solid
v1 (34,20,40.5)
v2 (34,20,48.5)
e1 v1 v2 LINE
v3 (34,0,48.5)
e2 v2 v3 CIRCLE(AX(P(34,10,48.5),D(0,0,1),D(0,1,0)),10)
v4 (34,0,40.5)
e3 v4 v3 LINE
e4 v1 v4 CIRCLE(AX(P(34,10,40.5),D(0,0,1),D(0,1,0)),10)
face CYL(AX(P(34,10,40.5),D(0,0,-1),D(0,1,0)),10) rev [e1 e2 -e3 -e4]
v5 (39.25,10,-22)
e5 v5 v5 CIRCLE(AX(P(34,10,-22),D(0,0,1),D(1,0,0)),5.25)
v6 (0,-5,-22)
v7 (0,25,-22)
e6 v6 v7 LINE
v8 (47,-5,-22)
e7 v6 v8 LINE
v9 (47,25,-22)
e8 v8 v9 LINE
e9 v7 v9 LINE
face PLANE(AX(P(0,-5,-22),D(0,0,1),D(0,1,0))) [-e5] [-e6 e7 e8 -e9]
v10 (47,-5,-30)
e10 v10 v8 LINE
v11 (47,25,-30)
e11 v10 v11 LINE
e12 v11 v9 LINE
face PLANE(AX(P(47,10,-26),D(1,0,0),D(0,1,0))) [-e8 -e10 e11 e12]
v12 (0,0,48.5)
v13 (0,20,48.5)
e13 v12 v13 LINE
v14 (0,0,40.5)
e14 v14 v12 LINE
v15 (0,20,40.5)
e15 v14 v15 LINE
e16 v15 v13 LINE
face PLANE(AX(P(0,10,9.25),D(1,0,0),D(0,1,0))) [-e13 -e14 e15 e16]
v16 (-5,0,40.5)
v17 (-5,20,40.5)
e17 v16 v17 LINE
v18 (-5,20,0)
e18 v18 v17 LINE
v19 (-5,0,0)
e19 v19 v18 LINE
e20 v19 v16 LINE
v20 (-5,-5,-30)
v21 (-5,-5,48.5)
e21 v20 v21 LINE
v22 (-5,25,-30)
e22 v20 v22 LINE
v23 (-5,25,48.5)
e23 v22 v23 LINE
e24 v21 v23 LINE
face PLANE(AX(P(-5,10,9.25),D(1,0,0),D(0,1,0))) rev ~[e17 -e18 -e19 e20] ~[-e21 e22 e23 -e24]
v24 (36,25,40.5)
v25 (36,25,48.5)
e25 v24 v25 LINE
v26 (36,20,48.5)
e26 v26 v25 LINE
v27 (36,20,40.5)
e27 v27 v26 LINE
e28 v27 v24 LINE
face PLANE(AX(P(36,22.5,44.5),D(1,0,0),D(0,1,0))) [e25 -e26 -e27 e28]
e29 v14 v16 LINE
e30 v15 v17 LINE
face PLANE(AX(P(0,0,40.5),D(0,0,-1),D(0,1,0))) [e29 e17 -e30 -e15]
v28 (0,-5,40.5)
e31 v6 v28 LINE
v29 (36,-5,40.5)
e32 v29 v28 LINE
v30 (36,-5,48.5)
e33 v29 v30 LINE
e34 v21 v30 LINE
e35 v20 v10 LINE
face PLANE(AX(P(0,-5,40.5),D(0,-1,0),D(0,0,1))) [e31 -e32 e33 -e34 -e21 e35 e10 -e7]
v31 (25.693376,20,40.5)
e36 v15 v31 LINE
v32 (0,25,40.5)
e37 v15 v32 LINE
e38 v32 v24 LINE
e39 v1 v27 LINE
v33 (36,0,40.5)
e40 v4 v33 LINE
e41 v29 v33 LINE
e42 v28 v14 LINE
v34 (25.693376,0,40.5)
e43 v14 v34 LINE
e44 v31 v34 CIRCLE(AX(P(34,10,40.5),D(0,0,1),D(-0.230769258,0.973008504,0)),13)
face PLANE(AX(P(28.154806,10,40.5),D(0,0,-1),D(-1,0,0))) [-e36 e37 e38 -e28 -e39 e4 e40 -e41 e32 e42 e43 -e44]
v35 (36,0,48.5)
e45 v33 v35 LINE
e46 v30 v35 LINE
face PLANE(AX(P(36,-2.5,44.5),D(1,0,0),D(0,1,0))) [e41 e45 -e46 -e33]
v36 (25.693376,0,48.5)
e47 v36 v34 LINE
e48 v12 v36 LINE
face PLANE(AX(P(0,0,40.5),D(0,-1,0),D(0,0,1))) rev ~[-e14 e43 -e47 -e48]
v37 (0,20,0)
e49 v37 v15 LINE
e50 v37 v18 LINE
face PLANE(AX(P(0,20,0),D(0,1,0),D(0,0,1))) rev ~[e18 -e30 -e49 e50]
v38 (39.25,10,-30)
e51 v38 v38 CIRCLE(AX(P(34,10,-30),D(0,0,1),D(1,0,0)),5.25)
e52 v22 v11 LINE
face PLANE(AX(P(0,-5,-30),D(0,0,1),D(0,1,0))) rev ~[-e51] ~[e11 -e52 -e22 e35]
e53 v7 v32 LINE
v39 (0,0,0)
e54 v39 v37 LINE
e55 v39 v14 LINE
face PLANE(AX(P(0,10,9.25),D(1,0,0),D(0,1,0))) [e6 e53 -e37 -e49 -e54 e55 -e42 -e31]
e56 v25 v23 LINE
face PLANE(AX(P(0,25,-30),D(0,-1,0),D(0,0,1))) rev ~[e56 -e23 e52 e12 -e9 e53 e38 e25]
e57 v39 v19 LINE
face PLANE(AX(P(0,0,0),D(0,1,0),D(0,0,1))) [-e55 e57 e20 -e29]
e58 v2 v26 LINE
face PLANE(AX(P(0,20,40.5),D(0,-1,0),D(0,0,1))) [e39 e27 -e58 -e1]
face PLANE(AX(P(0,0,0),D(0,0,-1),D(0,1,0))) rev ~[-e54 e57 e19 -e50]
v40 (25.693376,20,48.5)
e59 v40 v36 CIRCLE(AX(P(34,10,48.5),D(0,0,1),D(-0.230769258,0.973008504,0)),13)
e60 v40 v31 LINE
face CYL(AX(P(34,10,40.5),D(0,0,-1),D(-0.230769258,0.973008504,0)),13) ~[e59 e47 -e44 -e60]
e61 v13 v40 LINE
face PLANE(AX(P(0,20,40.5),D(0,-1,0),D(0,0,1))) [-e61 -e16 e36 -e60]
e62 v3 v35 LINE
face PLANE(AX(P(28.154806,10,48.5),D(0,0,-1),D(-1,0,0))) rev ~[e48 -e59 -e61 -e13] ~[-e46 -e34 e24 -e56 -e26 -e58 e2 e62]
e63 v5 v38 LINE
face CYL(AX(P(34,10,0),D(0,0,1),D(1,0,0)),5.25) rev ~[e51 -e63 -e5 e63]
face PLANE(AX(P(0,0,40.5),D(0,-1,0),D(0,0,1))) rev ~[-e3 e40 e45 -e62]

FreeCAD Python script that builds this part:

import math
import FreeCAD as App
import Part
import Sketcher

V = App.Vector
Q = App.Units.Quantity

doc = App.newDocument("Part")
body = doc.addObject("PartDesign::Body", "Body")

sketch1 = doc.addObject("Sketcher::SketchObject", "Sketch")
body.addObject(sketch1)
sketch1.AttachmentSupport = (doc.YZ_Plane, [""])
sketch1.MapMode = "FlatFace"
sketch1.addGeometry([
    Part.LineSegment(V(-5, 48, 0), V(-5, -30, 0)),
    Part.LineSegment(V(-5, -30, 0), V(25, -30, 0)),
    Part.LineSegment(V(25, -30, 0), V(25, 48, 0)),
    Part.LineSegment(V(25, 48, 0), V(-5, 48, 0)),
    Part.LineSegment(V(20, 0, 0), V(0, 0, 0)),
    Part.LineSegment(V(0, 0, 0), V(0, 40, 0)),
    Part.LineSegment(V(0, 40, 0), V(20, 40, 0)),
    Part.LineSegment(V(20, 40, 0), V(20, 0, 0)),
], False)
sketch1.addConstraint([
    Sketcher.Constraint("Coincident", 0, 2, 1, 1),
    Sketcher.Constraint("Coincident", 1, 2, 2, 1),
    Sketcher.Constraint("Coincident", 2, 2, 3, 1),
    Sketcher.Constraint("Coincident", 3, 2, 0, 1),
    Sketcher.Constraint("Coincident", 4, 2, 5, 1),
    Sketcher.Constraint("Coincident", 5, 2, 6, 1),
    Sketcher.Constraint("Coincident", 6, 2, 7, 1),
    Sketcher.Constraint("Coincident", 7, 2, 4, 1),
    Sketcher.Constraint("Vertical", 0),
    Sketcher.Constraint("Horizontal", 1),
    Sketcher.Constraint("Vertical", 2),
    Sketcher.Constraint("Horizontal", 3),
    Sketcher.Constraint("Horizontal", 4),
    Sketcher.Constraint("Vertical", 5),
    Sketcher.Constraint("Horizontal", 6),
    Sketcher.Constraint("Vertical", 7),
    Sketcher.Constraint("Coincident", 4, 2, -1, 1),
    Sketcher.Constraint("DistanceX", 1, 1, 1, 2, Q("30 mm")),
    Sketcher.Constraint("DistanceX", 4, 2, 4, 1, Q("20 mm")),
    Sketcher.Constraint("DistanceY", 0, 2, 0, 1, Q("78.5 mm")),
    Sketcher.Constraint("DistanceY", 5, 1, 5, 2, Q("40.5 mm")),
    Sketcher.Constraint("DistanceX", 0, 2, -1, 1, Q("5 mm")),
    Sketcher.Constraint("DistanceY", 0, 2, -1, 1, Q("30 mm")),
])
pad1 = doc.addObject("PartDesign::Pad", "Pad")
body.addObject(pad1)
pad1.Profile = sketch1
pad1.Length = 5
pad1.Reversed = True

sketch2 = doc.addObject("Sketcher::SketchObject", "Sketch001")
body.addObject(sketch2)
sketch2.AttachmentSupport = (doc.YZ_Plane, [""])
sketch2.MapMode = "FlatFace"
sketch2.addGeometry([
    Part.LineSegment(V(-5, -22, 0), V(-5, -30, 0)),
    Part.LineSegment(V(-5, -30, 0), V(25, -30, 0)),
    Part.LineSegment(V(25, -30, 0), V(25, -22, 0)),
    Part.LineSegment(V(25, -22, 0), V(-5, -22, 0)),
], False)
sketch2.addConstraint([
    Sketcher.Constraint("Coincident", 0, 2, 1, 1),
    Sketcher.Constraint("Coincident", 1, 2, 2, 1),
    Sketcher.Constraint("Coincident", 2, 2, 3, 1),
    Sketcher.Constraint("Coincident", 3, 2, 0, 1),
    Sketcher.Constraint("Vertical", 0),
    Sketcher.Constraint("Horizontal", 1),
    Sketcher.Constraint("Vertical", 2),
    Sketcher.Constraint("Horizontal", 3),
    Sketcher.Constraint("DistanceX", 1, 1, 1, 2, Q("30 mm")),
    Sketcher.Constraint("DistanceY", 0, 2, 0, 1, Q("8 mm")),
    Sketcher.Constraint("DistanceX", 0, 2, -1, 1, Q("5 mm")),
    Sketcher.Constraint("DistanceY", 0, 2, -1, 1, Q("30 mm")),
])
pad2 = doc.addObject("PartDesign::Pad", "Pad001")
body.addObject(pad2)
pad2.Profile = sketch2
pad2.Length = 47

sketch3 = doc.addObject("Sketcher::SketchObject", "Sketch002")
body.addObject(sketch3)
sketch3.AttachmentSupport = (doc.YZ_Plane, [""])
sketch3.MapMode = "FlatFace"
sketch3.addGeometry([
    Part.LineSegment(V(-5, 48, 0), V(-5, 40, 0)),
    Part.LineSegment(V(-5, 40, 0), V(0, 40, 0)),
    Part.LineSegment(V(0, 40, 0), V(0, 48, 0)),
    Part.LineSegment(V(0, 48, 0), V(-5, 48, 0)),
    Part.LineSegment(V(20, 48, 0), V(20, 40, 0)),
    Part.LineSegment(V(20, 40, 0), V(25, 40, 0)),
    Part.LineSegment(V(25, 40, 0), V(25, 48, 0)),
    Part.LineSegment(V(25, 48, 0), V(20, 48, 0)),
], False)
sketch3.addConstraint([
    Sketcher.Constraint("Coincident", 0, 2, 1, 1),
    Sketcher.Constraint("Coincident", 1, 2, 2, 1),
    Sketcher.Constraint("Coincident", 2, 2, 3, 1),
    Sketcher.Constraint("Coincident", 3, 2, 0, 1),
    Sketcher.Constraint("Coincident", 4, 2, 5, 1),
    Sketcher.Constraint("Coincident", 5, 2, 6, 1),
    Sketcher.Constraint("Coincident", 6, 2, 7, 1),
    Sketcher.Constraint("Coincident", 7, 2, 4, 1),
    Sketcher.Constraint("Vertical", 0),
    Sketcher.Constraint("Horizontal", 1),
    Sketcher.Constraint("Vertical", 2),
    Sketcher.Constraint("Horizontal", 3),
    Sketcher.Constraint("Vertical", 4),
    Sketcher.Constraint("Horizontal", 5),
    Sketcher.Constraint("Vertical", 6),
    Sketcher.Constraint("Horizontal", 7),
    Sketcher.Constraint("PointOnObject", 1, 2, -2),
    Sketcher.Constraint("Horizontal", 1, 2, 4, 2),
    Sketcher.Constraint("Horizontal", 3, 2, 6, 2),
    Sketcher.Constraint("Equal", 3, 5),
    Sketcher.Constraint("DistanceX", 1, 1, 1, 2, Q("5 mm")),
    Sketcher.Constraint("DistanceY", 0, 2, 0, 1, Q("8 mm")),
    Sketcher.Constraint("DistanceX", -1, 1, 4, 2, Q("20 mm")),
    Sketcher.Constraint("DistanceY", -1, 1, 0, 2, Q("40.5 mm")),
])
pad3 = doc.addObject("PartDesign::Pad", "Pad002")
body.addObject(pad3)
pad3.Profile = sketch3
pad3.Length = 36

sketch4 = doc.addObject("Sketcher::SketchObject", "Sketch003")
body.addObject(sketch4)
sketch4.AttachmentSupport = (doc.XY_Plane, [""])
sketch4.MapMode = "FlatFace"
sketch4.AttachmentOffset = App.Placement(V(0, 0, 40.5), App.Rotation())
sketch4.addGeometry([
    Part.ArcOfCircle(Part.Circle(V(34, 10, 0), V(0, 0, 1), 10), math.radians(90), math.radians(270)),
    Part.LineSegment(V(34, 20, 0), V(34, 25, 0)),
    Part.LineSegment(V(34, 25, 0), V(31, 25, 0)),
    Part.LineSegment(V(31, 25, 0), V(31, 22.6, 0)),
    Part.ArcOfCircle(Part.Circle(V(34, 10, 0), V(0, 0, 1), 13), math.radians(103), math.radians(257)),
    Part.LineSegment(V(31, -2.6, 0), V(31, -5, 0)),
    Part.LineSegment(V(31, -5, 0), V(34, -5, 0)),
    Part.LineSegment(V(34, -5, 0), V(34, 0, 0)),
], False)
sketch4.addConstraint([
    Sketcher.Constraint("Coincident", 0, 1, 1, 1),
    Sketcher.Constraint("Coincident", 1, 2, 2, 1),
    Sketcher.Constraint("Coincident", 2, 2, 3, 1),
    Sketcher.Constraint("Coincident", 3, 2, 4, 1),
    Sketcher.Constraint("Coincident", 4, 2, 5, 1),
    Sketcher.Constraint("Coincident", 5, 2, 6, 1),
    Sketcher.Constraint("Coincident", 6, 2, 7, 1),
    Sketcher.Constraint("Coincident", 7, 2, 0, 2),
    Sketcher.Constraint("Vertical", 1),
    Sketcher.Constraint("Horizontal", 2),
    Sketcher.Constraint("Vertical", 3),
    Sketcher.Constraint("Vertical", 5),
    Sketcher.Constraint("Horizontal", 6),
    Sketcher.Constraint("Vertical", 7),
    Sketcher.Constraint("Coincident", 4, 3, 0, 3),
    Sketcher.Constraint("PointOnObject", 7, 2, -1),
    Sketcher.Constraint("Vertical", 4, 3, 0, 1),
    Sketcher.Constraint("Vertical", 3, 2, 4, 2),
    Sketcher.Constraint("Vertical", 1, 2, 6, 2),
    Sketcher.Constraint("Equal", 3, 5),
    Sketcher.Constraint("Radius", 0, Q("10 mm")),
    Sketcher.Constraint("Radius", 4, Q("13 mm")),
    Sketcher.Constraint("DistanceX", 2, 2, 2, 1, Q("3 mm")),
    Sketcher.Constraint("DistanceY", 1, 1, 1, 2, Q("5 mm")),
    Sketcher.Constraint("DistanceX", -1, 1, 0, 3, Q("34 mm")),
])
pad4 = doc.addObject("PartDesign::Pad", "Pad003")
body.addObject(pad4)
pad4.Profile = sketch4
pad4.Length = 8

sketch5 = doc.addObject("Sketcher::SketchObject", "Sketch004")
body.addObject(sketch5)
sketch5.AttachmentSupport = (doc.YZ_Plane, [""])
sketch5.MapMode = "FlatFace"
sketch5.AttachmentOffset = App.Placement(V(0, 0, 40.5), App.Rotation())
sketch5.addGeometry([
    Part.Circle(V(-2.5, 44.5, 0), V(0, 0, 1), 1.5),
    Part.Circle(V(22.5, 44.5, 0), V(0, 0, 1), 1.5),
], False)
sketch5.addConstraint([
    Sketcher.Constraint("Equal", 0, 1),
    Sketcher.Constraint("Horizontal", 0, 3, 1, 3),
    Sketcher.Constraint("Diameter", 0, Q("3 mm")),
    Sketcher.Constraint("DistanceX", 0, 3, 1, 3, Q("25 mm")),
    Sketcher.Constraint("DistanceX", 0, 3, -1, 1, Q("2.5 mm")),
    Sketcher.Constraint("DistanceY", -1, 1, 0, 3, Q("44.5 mm")),
])
pocket1 = doc.addObject("PartDesign::Pocket", "Pocket")
body.addObject(pocket1)
pocket1.Profile = sketch5
pocket1.Type = "ThroughAll"
pocket1.Reversed = True

sketch6 = doc.addObject("Sketcher::SketchObject", "Sketch005")
body.addObject(sketch6)
sketch6.AttachmentSupport = (doc.XY_Plane, [""])
sketch6.MapMode = "FlatFace"
sketch6.addGeometry(Part.Circle(V(34, 10, 0), V(0, 0, 1), 5), False)
sketch6.addConstraint([
    Sketcher.Constraint("Diameter", 0, Q("10.5 mm")),
    Sketcher.Constraint("DistanceX", -1, 1, 0, 3, Q("34 mm")),
    Sketcher.Constraint("DistanceY", -1, 1, 0, 3, Q("10 mm")),
])
pocket2 = doc.addObject("PartDesign::Pocket", "Pocket001")
body.addObject(pocket2)
pocket2.Profile = sketch6
pocket2.Type = "ThroughAll"

doc.recompute()
